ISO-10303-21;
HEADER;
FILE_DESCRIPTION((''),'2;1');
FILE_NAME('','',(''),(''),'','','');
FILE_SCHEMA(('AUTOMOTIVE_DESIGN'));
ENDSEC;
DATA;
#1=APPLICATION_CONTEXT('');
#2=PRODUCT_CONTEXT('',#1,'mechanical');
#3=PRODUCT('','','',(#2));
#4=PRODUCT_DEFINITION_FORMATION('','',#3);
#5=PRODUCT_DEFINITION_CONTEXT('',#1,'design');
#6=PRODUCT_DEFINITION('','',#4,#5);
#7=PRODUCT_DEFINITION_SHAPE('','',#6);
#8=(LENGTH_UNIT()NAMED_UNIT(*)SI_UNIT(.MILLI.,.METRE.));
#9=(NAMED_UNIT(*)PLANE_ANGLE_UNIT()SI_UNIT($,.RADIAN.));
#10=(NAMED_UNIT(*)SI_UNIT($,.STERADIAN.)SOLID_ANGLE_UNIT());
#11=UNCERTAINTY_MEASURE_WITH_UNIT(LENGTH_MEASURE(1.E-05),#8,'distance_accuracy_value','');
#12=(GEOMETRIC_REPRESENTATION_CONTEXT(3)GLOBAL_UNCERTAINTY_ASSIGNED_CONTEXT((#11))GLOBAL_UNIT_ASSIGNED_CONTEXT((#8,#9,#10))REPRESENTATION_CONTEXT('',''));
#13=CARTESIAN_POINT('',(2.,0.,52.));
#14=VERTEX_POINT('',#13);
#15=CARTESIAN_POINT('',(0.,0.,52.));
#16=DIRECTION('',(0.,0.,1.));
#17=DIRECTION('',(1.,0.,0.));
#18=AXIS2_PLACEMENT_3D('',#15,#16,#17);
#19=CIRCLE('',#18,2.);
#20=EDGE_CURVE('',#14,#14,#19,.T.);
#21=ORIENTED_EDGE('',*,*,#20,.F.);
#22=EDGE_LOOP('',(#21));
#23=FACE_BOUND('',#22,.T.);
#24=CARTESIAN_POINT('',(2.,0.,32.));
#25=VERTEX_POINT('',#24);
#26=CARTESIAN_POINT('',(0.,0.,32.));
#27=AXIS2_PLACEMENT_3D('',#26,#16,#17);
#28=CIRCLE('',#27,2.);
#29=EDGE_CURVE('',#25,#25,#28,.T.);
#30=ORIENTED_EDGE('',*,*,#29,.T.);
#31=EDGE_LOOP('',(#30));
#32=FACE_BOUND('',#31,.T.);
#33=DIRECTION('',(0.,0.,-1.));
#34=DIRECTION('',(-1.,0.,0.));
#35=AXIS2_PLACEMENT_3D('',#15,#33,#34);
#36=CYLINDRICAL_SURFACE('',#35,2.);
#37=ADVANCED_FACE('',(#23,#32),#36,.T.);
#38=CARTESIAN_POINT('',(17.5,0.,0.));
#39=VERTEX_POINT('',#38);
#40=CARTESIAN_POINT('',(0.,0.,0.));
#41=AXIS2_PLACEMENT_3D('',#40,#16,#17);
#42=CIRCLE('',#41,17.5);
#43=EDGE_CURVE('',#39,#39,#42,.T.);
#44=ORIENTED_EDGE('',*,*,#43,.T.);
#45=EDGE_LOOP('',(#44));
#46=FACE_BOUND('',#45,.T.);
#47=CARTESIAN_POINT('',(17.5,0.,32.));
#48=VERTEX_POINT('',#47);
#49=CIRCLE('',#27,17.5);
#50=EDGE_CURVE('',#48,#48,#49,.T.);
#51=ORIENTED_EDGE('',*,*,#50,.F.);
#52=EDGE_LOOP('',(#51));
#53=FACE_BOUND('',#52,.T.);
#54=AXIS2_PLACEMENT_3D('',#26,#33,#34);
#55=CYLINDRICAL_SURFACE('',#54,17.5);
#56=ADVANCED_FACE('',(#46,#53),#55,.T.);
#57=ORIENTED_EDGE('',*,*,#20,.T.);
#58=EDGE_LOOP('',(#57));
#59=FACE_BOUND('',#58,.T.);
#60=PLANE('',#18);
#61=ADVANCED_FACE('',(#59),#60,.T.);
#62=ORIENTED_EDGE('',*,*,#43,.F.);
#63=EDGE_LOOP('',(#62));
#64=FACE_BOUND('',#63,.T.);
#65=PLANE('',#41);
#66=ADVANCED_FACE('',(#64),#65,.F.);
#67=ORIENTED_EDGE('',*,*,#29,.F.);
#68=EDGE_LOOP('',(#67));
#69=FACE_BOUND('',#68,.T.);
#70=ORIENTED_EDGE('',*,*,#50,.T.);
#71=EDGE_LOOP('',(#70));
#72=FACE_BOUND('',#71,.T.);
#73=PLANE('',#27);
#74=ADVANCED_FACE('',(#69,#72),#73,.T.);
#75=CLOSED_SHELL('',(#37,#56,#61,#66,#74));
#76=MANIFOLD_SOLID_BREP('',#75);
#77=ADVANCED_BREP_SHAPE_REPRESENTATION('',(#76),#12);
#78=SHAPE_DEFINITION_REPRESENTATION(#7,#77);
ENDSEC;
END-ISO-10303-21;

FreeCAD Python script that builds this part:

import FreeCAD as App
import Part
import Sketcher

doc = App.newDocument("Part")
params = doc.addObject("Spreadsheet::Sheet", "Params")
for row, (alias, value) in enumerate([
    ("sketch1_diameter", "35 mm"),
    ("pad1_length", "32 mm"),
    ("sketch2_diameter", "4 mm"),
    ("pad2_length", "20 mm"),
], start=1):
    params.set(f"A{row}", alias)
    params.set(f"B{row}", "=" + value)
    params.setAlias(f"B{row}", alias)

body = doc.addObject("PartDesign::Body", "Body")

# Sketch on XY plane
sketch1 = doc.addObject("Sketcher::SketchObject", "Sketch")
body.addObject(sketch1)
sketch1.AttachmentSupport = (doc.XY_Plane, [""])
sketch1.MapMode = "FlatFace"
sketch1.addGeometry(Part.Circle(App.Vector(0, 0, 0), App.Vector(0, 0, 1), 18), False)
sketch1.addConstraint(Sketcher.Constraint("Coincident", 0, 3, -1, 1))
sketch1.addConstraint(Sketcher.Constraint("Diameter", 0, 35.0))
sketch1.setExpression("Constraints[1]", "Params.sketch1_diameter")
pad1 = doc.addObject("PartDesign::Pad", "Pad")
body.addObject(pad1)
pad1.Profile = sketch1
pad1.setExpression("Length", "Params.pad1_length")

# Sketch on XY plane
sketch2 = doc.addObject("Sketcher::SketchObject", "Sketch001")
body.addObject(sketch2)
sketch2.AttachmentSupport = (doc.XY_Plane, [""])
sketch2.MapMode = "FlatFace"
sketch2.AttachmentOffset = App.Placement(App.Vector(0, 0, 32), App.Rotation())
sketch2.addGeometry(Part.Circle(App.Vector(0, 0, 0), App.Vector(0, 0, 1), 2), False)
sketch2.addConstraint(Sketcher.Constraint("Coincident", 0, 3, -1, 1))
sketch2.addConstraint(Sketcher.Constraint("Diameter", 0, 4.0))
sketch2.setExpression("Constraints[1]", "Params.sketch2_diameter")
pad2 = doc.addObject("PartDesign::Pad", "Pad001")
body.addObject(pad2)
pad2.Profile = sketch2
pad2.setExpression("Length", "Params.pad2_length")

doc.recompute()
